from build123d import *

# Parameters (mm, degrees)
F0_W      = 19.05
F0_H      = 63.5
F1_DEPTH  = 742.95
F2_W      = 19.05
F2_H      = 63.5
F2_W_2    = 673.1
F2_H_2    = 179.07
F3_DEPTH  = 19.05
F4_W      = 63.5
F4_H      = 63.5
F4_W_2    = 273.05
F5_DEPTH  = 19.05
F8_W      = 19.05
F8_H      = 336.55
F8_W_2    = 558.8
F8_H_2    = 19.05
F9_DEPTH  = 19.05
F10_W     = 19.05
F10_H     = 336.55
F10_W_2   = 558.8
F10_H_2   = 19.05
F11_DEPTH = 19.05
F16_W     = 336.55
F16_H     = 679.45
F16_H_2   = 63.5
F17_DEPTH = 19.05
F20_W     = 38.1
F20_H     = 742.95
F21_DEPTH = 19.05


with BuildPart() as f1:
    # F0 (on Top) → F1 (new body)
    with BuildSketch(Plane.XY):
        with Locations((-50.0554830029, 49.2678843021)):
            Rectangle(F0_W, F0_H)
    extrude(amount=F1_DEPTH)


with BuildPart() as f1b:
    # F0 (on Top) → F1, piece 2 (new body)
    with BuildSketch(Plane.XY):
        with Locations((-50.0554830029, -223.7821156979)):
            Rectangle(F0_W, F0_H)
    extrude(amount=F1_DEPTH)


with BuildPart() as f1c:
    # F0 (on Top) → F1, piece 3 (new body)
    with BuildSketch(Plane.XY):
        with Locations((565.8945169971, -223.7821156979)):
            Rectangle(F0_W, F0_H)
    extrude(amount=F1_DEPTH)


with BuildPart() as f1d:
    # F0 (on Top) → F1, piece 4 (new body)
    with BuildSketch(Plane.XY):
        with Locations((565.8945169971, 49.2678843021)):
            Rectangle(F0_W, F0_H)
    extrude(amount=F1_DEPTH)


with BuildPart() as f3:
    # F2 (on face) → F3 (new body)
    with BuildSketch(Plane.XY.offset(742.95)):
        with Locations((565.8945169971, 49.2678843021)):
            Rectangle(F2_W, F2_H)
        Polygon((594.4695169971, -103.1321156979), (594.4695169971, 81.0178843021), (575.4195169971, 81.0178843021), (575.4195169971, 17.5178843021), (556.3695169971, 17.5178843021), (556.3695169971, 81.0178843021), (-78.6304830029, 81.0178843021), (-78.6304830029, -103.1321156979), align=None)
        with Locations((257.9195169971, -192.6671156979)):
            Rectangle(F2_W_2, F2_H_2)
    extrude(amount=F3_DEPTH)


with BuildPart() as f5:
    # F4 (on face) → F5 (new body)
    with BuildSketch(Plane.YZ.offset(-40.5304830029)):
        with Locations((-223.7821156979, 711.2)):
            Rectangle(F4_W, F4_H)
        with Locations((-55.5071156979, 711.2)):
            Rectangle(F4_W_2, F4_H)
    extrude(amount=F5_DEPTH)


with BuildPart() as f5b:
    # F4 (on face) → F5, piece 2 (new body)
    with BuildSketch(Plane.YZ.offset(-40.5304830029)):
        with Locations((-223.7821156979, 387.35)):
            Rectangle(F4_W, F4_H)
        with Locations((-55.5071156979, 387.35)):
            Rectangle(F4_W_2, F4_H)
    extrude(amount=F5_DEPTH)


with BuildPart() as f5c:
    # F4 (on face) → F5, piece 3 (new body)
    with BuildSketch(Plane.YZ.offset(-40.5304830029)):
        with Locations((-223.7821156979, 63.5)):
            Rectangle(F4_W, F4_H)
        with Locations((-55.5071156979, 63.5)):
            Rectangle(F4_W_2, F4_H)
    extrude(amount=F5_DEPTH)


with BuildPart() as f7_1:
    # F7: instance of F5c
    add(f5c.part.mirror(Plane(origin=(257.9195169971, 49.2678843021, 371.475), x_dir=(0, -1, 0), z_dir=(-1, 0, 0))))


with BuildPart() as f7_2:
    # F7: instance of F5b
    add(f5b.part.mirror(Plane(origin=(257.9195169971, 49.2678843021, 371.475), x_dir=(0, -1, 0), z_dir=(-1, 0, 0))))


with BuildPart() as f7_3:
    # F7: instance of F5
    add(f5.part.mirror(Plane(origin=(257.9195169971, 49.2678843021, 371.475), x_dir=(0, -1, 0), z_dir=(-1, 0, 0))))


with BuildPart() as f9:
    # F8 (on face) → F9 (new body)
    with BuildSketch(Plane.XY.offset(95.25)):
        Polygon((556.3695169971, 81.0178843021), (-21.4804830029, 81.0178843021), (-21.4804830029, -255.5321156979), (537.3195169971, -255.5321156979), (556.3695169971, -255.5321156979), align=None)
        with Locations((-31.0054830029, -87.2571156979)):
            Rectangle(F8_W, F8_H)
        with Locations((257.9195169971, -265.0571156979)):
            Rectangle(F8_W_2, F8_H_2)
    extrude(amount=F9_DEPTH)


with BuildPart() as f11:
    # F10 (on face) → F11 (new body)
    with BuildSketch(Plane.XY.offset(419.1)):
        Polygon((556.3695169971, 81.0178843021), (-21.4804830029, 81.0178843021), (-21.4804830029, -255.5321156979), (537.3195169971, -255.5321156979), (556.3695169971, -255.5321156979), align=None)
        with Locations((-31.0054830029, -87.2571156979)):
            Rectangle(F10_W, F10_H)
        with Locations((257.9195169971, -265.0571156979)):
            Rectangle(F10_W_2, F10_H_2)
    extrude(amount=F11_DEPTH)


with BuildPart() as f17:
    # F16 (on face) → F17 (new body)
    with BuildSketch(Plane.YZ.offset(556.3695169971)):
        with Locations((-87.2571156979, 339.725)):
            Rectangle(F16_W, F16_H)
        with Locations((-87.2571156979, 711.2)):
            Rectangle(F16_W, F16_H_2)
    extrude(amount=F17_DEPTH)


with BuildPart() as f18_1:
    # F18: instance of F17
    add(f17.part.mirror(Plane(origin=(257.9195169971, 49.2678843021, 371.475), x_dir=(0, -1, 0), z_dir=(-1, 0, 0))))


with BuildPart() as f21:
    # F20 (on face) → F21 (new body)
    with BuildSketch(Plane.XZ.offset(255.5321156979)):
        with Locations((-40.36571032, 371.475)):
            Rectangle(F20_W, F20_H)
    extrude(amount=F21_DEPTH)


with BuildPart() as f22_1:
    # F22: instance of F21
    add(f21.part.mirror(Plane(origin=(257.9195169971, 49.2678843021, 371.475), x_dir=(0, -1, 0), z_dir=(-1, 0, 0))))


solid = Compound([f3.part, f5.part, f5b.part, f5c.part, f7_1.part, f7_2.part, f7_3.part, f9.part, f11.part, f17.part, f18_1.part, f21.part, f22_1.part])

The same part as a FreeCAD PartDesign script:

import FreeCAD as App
import Part
import Sketcher
Q = App.Units.Quantity

doc = App.newDocument("Part")
body = doc.addObject("PartDesign::Body", "Body")

# Sketch on XY plane
sketch1 = body.newObject("Sketcher::SketchObject", "Sketch")
sketch1.AttachmentSupport = (doc.getObject("XY_Plane"), [""])
sketch1.MapMode = "FlatFace"
sketch1.addGeometry([
    Part.LineSegment(App.Vector(-59.580483, 81.017884, 0), App.Vector(-59.580483, 17.517884, 0)),
    Part.LineSegment(App.Vector(-59.580483, 17.517884, 0), App.Vector(-40.530483, 17.517884, 0)),
    Part.LineSegment(App.Vector(-40.530483, 17.517884, 0), App.Vector(-40.530483, 81.017884, 0)),
    Part.LineSegment(App.Vector(-40.530483, 81.017884, 0), App.Vector(-59.580483, 81.017884, 0)),
], False)
sketch1.addConstraint([
    Sketcher.Constraint("Coincident", 0, 2, 1, 1),
    Sketcher.Constraint("Coincident", 1, 2, 2, 1),
    Sketcher.Constraint("Coincident", 2, 2, 3, 1),
    Sketcher.Constraint("Coincident", 3, 2, 0, 1),
    Sketcher.Constraint("Vertical", 0),
    Sketcher.Constraint("Horizontal", 1),
    Sketcher.Constraint("Vertical", 2),
    Sketcher.Constraint("Horizontal", 3),
    Sketcher.Constraint("DistanceY", 0, 2, 0, 1, Q("2.5 in")),
    Sketcher.Constraint("DistanceX", 1, 1, 1, 2, Q("0.75 in")),
    Sketcher.Constraint("DistanceX", 0, 2, -1, 1, 59.580483),
    Sketcher.Constraint("DistanceY", -1, 1, 0, 2, 17.517884),
])
pad1 = body.newObject("PartDesign::Pad", "Pad")
pad1.Profile = sketch1
pad1.Length = Q("29.25 in")
body2 = doc.addObject("PartDesign::Body", "Body001")

# Sketch on XY plane
sketch2 = body2.newObject("Sketcher::SketchObject", "Sketch001")
sketch2.AttachmentSupport = (doc.getObject("XY_Plane001"), [""])
sketch2.MapMode = "FlatFace"
sketch2.addGeometry([
    Part.LineSegment(App.Vector(-59.580483, -192.032116, 0), App.Vector(-59.580483, -255.532116, 0)),
    Part.LineSegment(App.Vector(-59.580483, -255.532116, 0), App.Vector(-40.530483, -255.532116, 0)),
    Part.LineSegment(App.Vector(-40.530483, -255.532116, 0), App.Vector(-40.530483, -192.032116, 0)),
    Part.LineSegment(App.Vector(-40.530483, -192.032116, 0), App.Vector(-59.580483, -192.032116, 0)),
], False)
sketch2.addConstraint([
    Sketcher.Constraint("Coincident", 0, 2, 1, 1),
    Sketcher.Constraint("Coincident", 1, 2, 2, 1),
    Sketcher.Constraint("Coincident", 2, 2, 3, 1),
    Sketcher.Constraint("Coincident", 3, 2, 0, 1),
    Sketcher.Constraint("Vertical", 0),
    Sketcher.Constraint("Horizontal", 1),
    Sketcher.Constraint("Vertical", 2),
    Sketcher.Constraint("Horizontal", 3),
    Sketcher.Constraint("DistanceY", 0, 2, 0, 1, Q("2.5 in")),
    Sketcher.Constraint("DistanceX", 1, 1, 1, 2, Q("0.75 in")),
    Sketcher.Constraint("DistanceX", 0, 2, -1, 1, 59.580483),
    Sketcher.Constraint("DistanceY", 0, 2, -1, 1, 255.532116),
])
pad2 = body2.newObject("PartDesign::Pad", "Pad001")
pad2.Profile = sketch2
pad2.Length = Q("29.25 in")
body3 = doc.addObject("PartDesign::Body", "Body002")

# Sketch on XY plane
sketch3 = body3.newObject("Sketcher::SketchObject", "Sketch002")
sketch3.AttachmentSupport = (doc.getObject("XY_Plane002"), [""])
sketch3.MapMode = "FlatFace"
sketch3.addGeometry([
    Part.LineSegment(App.Vector(556.369517, -192.032116, 0), App.Vector(556.369517, -255.532116, 0)),
    Part.LineSegment(App.Vector(556.369517, -255.532116, 0), App.Vector(575.419517, -255.532116, 0)),
    Part.LineSegment(App.Vector(575.419517, -255.532116, 0), App.Vector(575.419517, -192.032116, 0)),
    Part.LineSegment(App.Vector(575.419517, -192.032116, 0), App.Vector(556.369517, -192.032116, 0)),
], False)
sketch3.addConstraint([
    Sketcher.Constraint("Coincident", 0, 2, 1, 1),
    Sketcher.Constraint("Coincident", 1, 2, 2, 1),
    Sketcher.Constraint("Coincident", 2, 2, 3, 1),
    Sketcher.Constraint("Coincident", 3, 2, 0, 1),
    Sketcher.Constraint("Vertical", 0),
    Sketcher.Constraint("Horizontal", 1),
    Sketcher.Constraint("Vertical", 2),
    Sketcher.Constraint("Horizontal", 3),
    Sketcher.Constraint("DistanceY", 0, 2, 0, 1, Q("2.5 in")),
    Sketcher.Constraint("DistanceX", 1, 1, 1, 2, Q("0.75 in")),
    Sketcher.Constraint("DistanceX", -1, 1, 0, 2, 556.369517),
    Sketcher.Constraint("DistanceY", 0, 2, -1, 1, 255.532116),
])
pad3 = body3.newObject("PartDesign::Pad", "Pad002")
pad3.Profile = sketch3
pad3.Length = Q("29.25 in")
body4 = doc.addObject("PartDesign::Body", "Body003")

# Sketch on XY plane
sketch4 = body4.newObject("Sketcher::SketchObject", "Sketch003")
sketch4.AttachmentSupport = (doc.getObject("XY_Plane003"), [""])
sketch4.MapMode = "FlatFace"
sketch4.addGeometry([
    Part.LineSegment(App.Vector(556.369517, 81.017884, 0), App.Vector(556.369517, 17.517884, 0)),
    Part.LineSegment(App.Vector(556.369517, 17.517884, 0), App.Vector(575.419517, 17.517884, 0)),
    Part.LineSegment(App.Vector(575.419517, 17.517884, 0), App.Vector(575.419517, 81.017884, 0)),
    Part.LineSegment(App.Vector(575.419517, 81.017884, 0), App.Vector(556.369517, 81.017884, 0)),
], False)
sketch4.addConstraint([
    Sketcher.Constraint("Coincident", 0, 2, 1, 1),
    Sketcher.Constraint("Coincident", 1, 2, 2, 1),
    Sketcher.Constraint("Coincident", 2, 2, 3, 1),
    Sketcher.Constraint("Coincident", 3, 2, 0, 1),
    Sketcher.Constraint("Vertical", 0),
    Sketcher.Constraint("Horizontal", 1),
    Sketcher.Constraint("Vertical", 2),
    Sketcher.Constraint("Horizontal", 3),
    Sketcher.Constraint("DistanceY", 0, 2, 0, 1, Q("2.5 in")),
    Sketcher.Constraint("DistanceX", 1, 1, 1, 2, Q("0.75 in")),
    Sketcher.Constraint("DistanceX", -1, 1, 0, 2, 556.369517),
    Sketcher.Constraint("DistanceY", -1, 1, 0, 2, 17.517884),
])
pad4 = body4.newObject("PartDesign::Pad", "Pad003")
pad4.Profile = sketch4
pad4.Length = Q("29.25 in")
body5 = doc.addObject("PartDesign::Body", "Body004")

# Sketch on XY plane
sketch5 = body5.newObject("Sketcher::SketchObject", "Sketch004")
sketch5.AttachmentSupport = (doc.getObject("XY_Plane004"), [""])
sketch5.MapMode = "FlatFace"
sketch5.AttachmentOffset = App.Placement(App.Vector(0, 0, 29.25 * 25.4), App.Rotation())
sketch5.addGeometry([
    Part.LineSegment(App.Vector(-78.630483, 81.017884, 0), App.Vector(-78.630483, -282.202116, 0)),
    Part.LineSegment(App.Vector(-78.630483, -282.202116, 0), App.Vector(594.469517, -282.202116, 0)),
    Part.LineSegment(App.Vector(594.469517, -282.202116, 0), App.Vector(594.469517, 81.017884, 0)),
    Part.LineSegment(App.Vector(594.469517, 81.017884, 0), App.Vector(-78.630483, 81.017884, 0)),
], False)
sketch5.addConstraint([
    Sketcher.Constraint("Coincident", 0, 2, 1, 1),
    Sketcher.Constraint("Coincident", 1, 2, 2, 1),
    Sketcher.Constraint("Coincident", 2, 2, 3, 1),
    Sketcher.Constraint("Coincident", 3, 2, 0, 1),
    Sketcher.Constraint("Vertical", 0),
    Sketcher.Constraint("Horizontal", 1),
    Sketcher.Constraint("Vertical", 2),
    Sketcher.Constraint("Horizontal", 3),
    Sketcher.Constraint("DistanceX", 1, 1, 1, 2, Q("26.5 in")),
    Sketcher.Constraint("DistanceY", 0, 2, 0, 1, Q("14.3 in")),
    Sketcher.Constraint("DistanceX", 0, 2, -1, 1, 78.630483),
    Sketcher.Constraint("DistanceY", 0, 2, -1, 1, 282.202116),
])
pad5 = body5.newObject("PartDesign::Pad", "Pad004")
pad5.Profile = sketch5
pad5.Length = Q("0.75 in")
body6 = doc.addObject("PartDesign::Body", "Body005")

# Sketch on YZ plane
sketch6 = body6.newObject("Sketcher::SketchObject", "Sketch005")
sketch6.AttachmentSupport = (doc.getObject("YZ_Plane005"), [""])
sketch6.MapMode = "FlatFace"
sketch6.AttachmentOffset = App.Placement(App.Vector(0, 0, -40.530483), App.Rotation())
sketch6.addGeometry([
    Part.LineSegment(App.Vector(-255.532116, 742.95, 0), App.Vector(-255.532116, 679.45, 0)),
    Part.LineSegment(App.Vector(-255.532116, 679.45, 0), App.Vector(81.017884, 679.45, 0)),
    Part.LineSegment(App.Vector(81.017884, 679.45, 0), App.Vector(81.017884, 742.95, 0)),
    Part.LineSegment(App.Vector(81.017884, 742.95, 0), App.Vector(-255.532116, 742.95, 0)),
], False)
sketch6.addConstraint([
    Sketcher.Constraint("Coincident", 0, 2, 1, 1),
    Sketcher.Constraint("Coincident", 1, 2, 2, 1),
    Sketcher.Constraint("Coincident", 2, 2, 3, 1),
    Sketcher.Constraint("Coincident", 3, 2, 0, 1),
    Sketcher.Constraint("Vertical", 0),
    Sketcher.Constraint("Horizontal", 1),
    Sketcher.Constraint("Vertical", 2),
    Sketcher.Constraint("Horizontal", 3),
    Sketcher.Constraint("DistanceY", 0, 2, 0, 1, Q("2.5 in")),
    Sketcher.Constraint("DistanceX", 1, 1, 1, 2, Q("13.25 in")),
    Sketcher.Constraint("DistanceY", -1, 1, 0, 2, Q("26.75 in")),
    Sketcher.Constraint("DistanceX", 0, 2, -1, 1, 255.532116),
])
pad6 = body6.newObject("PartDesign::Pad", "Pad005")
pad6.Profile = sketch6
pad6.Length = Q("0.75 in")
body7 = doc.addObject("PartDesign::Body", "Body006")

# Sketch on YZ plane
sketch7 = body7.newObject("Sketcher::SketchObject", "Sketch006")
sketch7.AttachmentSupport = (doc.getObject("YZ_Plane006"), [""])
sketch7.MapMode = "FlatFace"
sketch7.AttachmentOffset = App.Placement(App.Vector(0, 0, -40.530483), App.Rotation())
sketch7.addGeometry([
    Part.LineSegment(App.Vector(-255.532116, 419.1, 0), App.Vector(-255.532116, 355.6, 0)),
    Part.LineSegment(App.Vector(-255.532116, 355.6, 0), App.Vector(81.017884, 355.6, 0)),
    Part.LineSegment(App.Vector(81.017884, 355.6, 0), App.Vector(81.017884, 419.1, 0)),
    Part.LineSegment(App.Vector(81.017884, 419.1, 0), App.Vector(-255.532116, 419.1, 0)),
], False)
sketch7.addConstraint([
    Sketcher.Constraint("Coincident", 0, 2, 1, 1),
    Sketcher.Constraint("Coincident", 1, 2, 2, 1),
    Sketcher.Constraint("Coincident", 2, 2, 3, 1),
    Sketcher.Constraint("Coincident", 3, 2, 0, 1),
    Sketcher.Constraint("Vertical", 0),
    Sketcher.Constraint("Horizontal", 1),
    Sketcher.Constraint("Vertical", 2),
    Sketcher.Constraint("Horizontal", 3),
    Sketcher.Constraint("DistanceY", 0, 2, 0, 1, Q("2.5 in")),
    Sketcher.Constraint("DistanceY", -1, 1, 0, 2, Q("14 in")),
    Sketcher.Constraint("DistanceX", 1, 1, 1, 2, Q("13.25 in")),
    Sketcher.Constraint("DistanceX", 0, 2, -1, 1, 255.532116),
])
pad7 = body7.newObject("PartDesign::Pad", "Pad006")
pad7.Profile = sketch7
pad7.Length = Q("0.75 in")
body8 = doc.addObject("PartDesign::Body", "Body007")

# Sketch on YZ plane
sketch8 = body8.newObject("Sketcher::SketchObject", "Sketch007")
sketch8.AttachmentSupport = (doc.getObject("YZ_Plane007"), [""])
sketch8.MapMode = "FlatFace"
sketch8.AttachmentOffset = App.Placement(App.Vector(0, 0, -40.530483), App.Rotation())
sketch8.addGeometry([
    Part.LineSegment(App.Vector(-255.532116, 95.25, 0), App.Vector(-255.532116, 31.75, 0)),
    Part.LineSegment(App.Vector(-255.532116, 31.75, 0), App.Vector(81.017884, 31.75, 0)),
    Part.LineSegment(App.Vector(81.017884, 31.75, 0), App.Vector(81.017884, 95.25, 0)),
    Part.LineSegment(App.Vector(81.017884, 95.25, 0), App.Vector(-255.532116, 95.25, 0)),
], False)
sketch8.addConstraint([
    Sketcher.Constraint("Coincident", 0, 2, 1, 1),
    Sketcher.Constraint("Coincident", 1, 2, 2, 1),
    Sketcher.Constraint("Coincident", 2, 2, 3, 1),
    Sketcher.Constraint("Coincident", 3, 2, 0, 1),
    Sketcher.Constraint("Vertical", 0),
    Sketcher.Constraint("Horizontal", 1),
    Sketcher.Constraint("Vertical", 2),
    Sketcher.Constraint("Horizontal", 3),
    Sketcher.Constraint("DistanceY", 0, 2, 0, 1, Q("2.5 in")),
    Sketcher.Constraint("DistanceX", 1, 1, 1, 2, Q("13.25 in")),
    Sketcher.Constraint("DistanceY", -1, 1, 0, 2, Q("1.25 in")),
    Sketcher.Constraint("DistanceX", 0, 2, -1, 1, 255.532116),
])
pad8 = body8.newObject("PartDesign::Pad", "Pad007")
pad8.Profile = sketch8
pad8.Length = Q("0.75 in")
body9 = doc.addObject("PartDesign::Body", "Body008")
doc.recompute()

mirroring = doc.addObject("Part::Mirroring", "Mirroring")
mirroring.Source = body8
mirroring.Base = App.Vector(257.919517, 49.267884, 371.475)
mirroring.Normal = App.Vector(-1, 0, 0)
body9.BaseFeature = mirroring
doc.recompute()
body10 = doc.addObject("PartDesign::Body", "Body009")
doc.recompute()

mirroring2 = doc.addObject("Part::Mirroring", "Mirroring001")
mirroring2.Source = body7
mirroring2.Base = App.Vector(257.919517, 49.267884, 371.475)
mirroring2.Normal = App.Vector(-1, 0, 0)
body10.BaseFeature = mirroring2
doc.recompute()
body11 = doc.addObject("PartDesign::Body", "Body010")
doc.recompute()

mirroring3 = doc.addObject("Part::Mirroring", "Mirroring002")
mirroring3.Source = body6
mirroring3.Base = App.Vector(257.919517, 49.267884, 371.475)
mirroring3.Normal = App.Vector(-1, 0, 0)
body11.BaseFeature = mirroring3
doc.recompute()
body12 = doc.addObject("PartDesign::Body", "Body011")

# Sketch on XY plane
sketch9 = body12.newObject("Sketcher::SketchObject", "Sketch008")
sketch9.AttachmentSupport = (doc.getObject("XY_Plane011"), [""])
sketch9.MapMode = "FlatFace"
sketch9.AttachmentOffset = App.Placement(App.Vector(0, 0, 3.75 * 25.4), App.Rotation())
sketch9.addGeometry([
    Part.LineSegment(App.Vector(556.369517, 81.017884, 0), App.Vector(-40.530483, 81.017884, 0)),  # 0
    Part.LineSegment(App.Vector(-40.530483, 81.017884, 0), App.Vector(-40.530483, -255.532116, 0)),  # 1
    Part.LineSegment(App.Vector(-40.530483, -255.532116, 0), App.Vector(-21.480483, -255.532116, 0)),  # 2
    Part.LineSegment(App.Vector(-21.480483, -255.532116, 0), App.Vector(-21.480483, -274.582116, 0)),  # 3
    Part.LineSegment(App.Vector(-21.480483, -274.582116, 0), App.Vector(537.319517, -274.582116, 0)),  # 4
    Part.LineSegment(App.Vector(537.319517, -274.582116, 0), App.Vector(537.319517, -255.532116, 0)),  # 5
    Part.LineSegment(App.Vector(537.319517, -255.532116, 0), App.Vector(556.369517, -255.532116, 0)),  # 6
    Part.LineSegment(App.Vector(556.369517, -255.532116, 0), App.Vector(556.369517, 81.017884, 0)),  # 7
], False)
sketch9.addConstraint([
    Sketcher.Constraint("Coincident", 0, 2, 1, 1),
    Sketcher.Constraint("Coincident", 1, 2, 2, 1),
    Sketcher.Constraint("Coincident", 2, 2, 3, 1),
    Sketcher.Constraint("Coincident", 3, 2, 4, 1),
    Sketcher.Constraint("Coincident", 4, 2, 5, 1),
    Sketcher.Constraint("Coincident", 5, 2, 6, 1),
    Sketcher.Constraint("Coincident", 6, 2, 7, 1),
    Sketcher.Constraint("Coincident", 7, 2, 0, 1),
    Sketcher.Constraint("Horizontal", 0),
    Sketcher.Constraint("Vertical", 1),
    Sketcher.Constraint("Horizontal", 2),
    Sketcher.Constraint("Vertical", 3),
    Sketcher.Constraint("Horizontal", 4),
    Sketcher.Constraint("Vertical", 5),
    Sketcher.Constraint("Horizontal", 6),
    Sketcher.Constraint("Vertical", 7),
    Sketcher.Constraint("Horizontal", 2, 2, 5, 2),
    Sketcher.Constraint("Equal", 2, 6),
    Sketcher.Constraint("Equal", 6, 3),
    Sketcher.Constraint("DistanceX", 4, 1, 4, 2, Q("22 in")),
    Sketcher.Constraint("DistanceX", 0, 2, 0, 1, Q("23.5 in")),
    Sketcher.Constraint("DistanceY", 3, 2, 0, 2, Q("14 in")),
    Sketcher.Constraint("DistanceX", 0, 2, -1, 1, 40.530483),
    Sketcher.Constraint("DistanceY", -1, 1, 0, 2, 81.017884),
])
pad9 = body12.newObject("PartDesign::Pad", "Pad008")
pad9.Profile = sketch9
pad9.Length = Q("0.75 in")
body13 = doc.addObject("PartDesign::Body", "Body012")

# Sketch on XY plane
sketch10 = body13.newObject("Sketcher::SketchObject", "Sketch009")
sketch10.AttachmentSupport = (doc.getObject("XY_Plane012"), [""])
sketch10.MapMode = "FlatFace"
sketch10.AttachmentOffset = App.Placement(App.Vector(0, 0, 16.5 * 25.4), App.Rotation())
sketch10.addGeometry([
    Part.LineSegment(App.Vector(556.369517, 81.017884, 0), App.Vector(-40.530483, 81.017884, 0)),  # 0
    Part.LineSegment(App.Vector(-40.530483, 81.017884, 0), App.Vector(-40.530483, -255.532116, 0)),  # 1
    Part.LineSegment(App.Vector(-40.530483, -255.532116, 0), App.Vector(-21.480483, -255.532116, 0)),  # 2
    Part.LineSegment(App.Vector(-21.480483, -255.532116, 0), App.Vector(-21.480483, -274.582116, 0)),  # 3
    Part.LineSegment(App.Vector(-21.480483, -274.582116, 0), App.Vector(537.319517, -274.582116, 0)),  # 4
    Part.LineSegment(App.Vector(537.319517, -274.582116, 0), App.Vector(537.319517, -255.532116, 0)),  # 5
    Part.LineSegment(App.Vector(537.319517, -255.532116, 0), App.Vector(556.369517, -255.532116, 0)),  # 6
    Part.LineSegment(App.Vector(556.369517, -255.532116, 0), App.Vector(556.369517, 81.017884, 0)),  # 7
], False)
sketch10.addConstraint([
    Sketcher.Constraint("Coincident", 0, 2, 1, 1),
    Sketcher.Constraint("Coincident", 1, 2, 2, 1),
    Sketcher.Constraint("Coincident", 2, 2, 3, 1),
    Sketcher.Constraint("Coincident", 3, 2, 4, 1),
    Sketcher.Constraint("Coincident", 4, 2, 5, 1),
    Sketcher.Constraint("Coincident", 5, 2, 6, 1),
    Sketcher.Constraint("Coincident", 6, 2, 7, 1),
    Sketcher.Constraint("Coincident", 7, 2, 0, 1),
    Sketcher.Constraint("Horizontal", 0),
    Sketcher.Constraint("Vertical", 1),
    Sketcher.Constraint("Horizontal", 2),
    Sketcher.Constraint("Vertical", 3),
    Sketcher.Constraint("Horizontal", 4),
    Sketcher.Constraint("Vertical", 5),
    Sketcher.Constraint("Horizontal", 6),
    Sketcher.Constraint("Vertical", 7),
    Sketcher.Constraint("Horizontal", 2, 2, 5, 2),
    Sketcher.Constraint("Equal", 2, 6),
    Sketcher.Constraint("Equal", 6, 3),
    Sketcher.Constraint("DistanceX", 4, 1, 4, 2, Q("22 in")),
    Sketcher.Constraint("DistanceX", 0, 2, 0, 1, Q("23.5 in")),
    Sketcher.Constraint("DistanceY", 3, 2, 0, 2, Q("14 in")),
    Sketcher.Constraint("DistanceX", 0, 2, -1, 1, 40.530483),
    Sketcher.Constraint("DistanceY", -1, 1, 0, 2, 81.017884),
])
pad10 = body13.newObject("PartDesign::Pad", "Pad009")
pad10.Profile = sketch10
pad10.Length = Q("0.75 in")
body14 = doc.addObject("PartDesign::Body", "Body013")

# Sketch on YZ plane
sketch11 = body14.newObject("Sketcher::SketchObject", "Sketch010")
sketch11.AttachmentSupport = (doc.getObject("YZ_Plane013"), [""])
sketch11.MapMode = "FlatFace"
sketch11.AttachmentOffset = App.Placement(App.Vector(0, 0, 556.369517), App.Rotation())
sketch11.addGeometry([
    Part.LineSegment(App.Vector(-255.532116, 0, 0), App.Vector(81.017884, 0, 0)),
    Part.LineSegment(App.Vector(81.017884, 0, 0), App.Vector(81.017884, 742.95, 0)),
    Part.LineSegment(App.Vector(81.017884, 742.95, 0), App.Vector(-255.532116, 742.95, 0)),
    Part.LineSegment(App.Vector(-255.532116, 742.95, 0), App.Vector(-255.532116, 0, 0)),
], False)
sketch11.addConstraint([
    Sketcher.Constraint("Coincident", 0, 2, 1, 1),
    Sketcher.Constraint("Coincident", 1, 2, 2, 1),
    Sketcher.Constraint("Coincident", 2, 2, 3, 1),
    Sketcher.Constraint("Coincident", 3, 2, 0, 1),
    Sketcher.Constraint("Horizontal", 0),
    Sketcher.Constraint("Vertical", 1),
    Sketcher.Constraint("Horizontal", 2),
    Sketcher.Constraint("Vertical", 3),
    Sketcher.Constraint("PointOnObject", 0, 2, -1),
    Sketcher.Constraint("DistanceX", 0, 1, 0, 2, Q("13.25 in")),
    Sketcher.Constraint("DistanceY", 1, 1, 1, 2, Q("29.25 in")),
    Sketcher.Constraint("DistanceX", -1, 1, 0, 2, 81.017884),
])
pad11 = body14.newObject("PartDesign::Pad", "Pad010")
pad11.Profile = sketch11
pad11.Length = Q("0.75 in")
body15 = doc.addObject("PartDesign::Body", "Body014")
doc.recompute()

mirroring4 = doc.addObject("Part::Mirroring", "Mirroring003")
mirroring4.Source = body14
mirroring4.Base = App.Vector(257.919517, 49.267884, 371.475)
mirroring4.Normal = App.Vector(-1, 0, 0)
body15.BaseFeature = mirroring4
doc.recompute()
body16 = doc.addObject("PartDesign::Body", "Body015")

# Sketch on XZ plane
sketch12 = body16.newObject("Sketcher::SketchObject", "Sketch011")
sketch12.AttachmentSupport = (doc.getObject("XZ_Plane015"), [""])
sketch12.MapMode = "FlatFace"
sketch12.AttachmentOffset = App.Placement(App.Vector(0, 0, 255.532116), App.Rotation())
sketch12.addGeometry([
    Part.LineSegment(App.Vector(-59.41571, 742.95, 0), App.Vector(-59.41571, 0, 0)),
    Part.LineSegment(App.Vector(-59.41571, 0, 0), App.Vector(-21.31571, 0, 0)),
    Part.LineSegment(App.Vector(-21.31571, 0, 0), App.Vector(-21.31571, 742.95, 0)),
    Part.LineSegment(App.Vector(-21.31571, 742.95, 0), App.Vector(-59.41571, 742.95, 0)),
], False)
sketch12.addConstraint([
    Sketcher.Constraint("Coincident", 0, 2, 1, 1),
    Sketcher.Constraint("Coincident", 1, 2, 2, 1),
    Sketcher.Constraint("Coincident", 2, 2, 3, 1),
    Sketcher.Constraint("Coincident", 3, 2, 0, 1),
    Sketcher.Constraint("Vertical", 0),
    Sketcher.Constraint("Horizontal", 1),
    Sketcher.Constraint("Vertical", 2),
    Sketcher.Constraint("Horizontal", 3),
    Sketcher.Constraint("PointOnObject", 0, 2, -1),
    Sketcher.Constraint("DistanceX", 1, 1, 1, 2, Q("1.5 in")),
    Sketcher.Constraint("DistanceY", 0, 2, 0, 1, Q("29.25 in")),
    Sketcher.Constraint("DistanceX", 0, 2, -1, 1, 59.41571),
])
pad12 = body16.newObject("PartDesign::Pad", "Pad011")
pad12.Profile = sketch12
pad12.Length = Q("0.75 in")
body17 = doc.addObject("PartDesign::Body", "Body016")
doc.recompute()

mirroring5 = doc.addObject("Part::Mirroring", "Mirroring004")
mirroring5.Source = body16
mirroring5.Base = App.Vector(257.919517, 49.267884, 371.475)
mirroring5.Normal = App.Vector(-1, 0, 0)
body17.BaseFeature = mirroring5
doc.recompute()

doc.recompute()
